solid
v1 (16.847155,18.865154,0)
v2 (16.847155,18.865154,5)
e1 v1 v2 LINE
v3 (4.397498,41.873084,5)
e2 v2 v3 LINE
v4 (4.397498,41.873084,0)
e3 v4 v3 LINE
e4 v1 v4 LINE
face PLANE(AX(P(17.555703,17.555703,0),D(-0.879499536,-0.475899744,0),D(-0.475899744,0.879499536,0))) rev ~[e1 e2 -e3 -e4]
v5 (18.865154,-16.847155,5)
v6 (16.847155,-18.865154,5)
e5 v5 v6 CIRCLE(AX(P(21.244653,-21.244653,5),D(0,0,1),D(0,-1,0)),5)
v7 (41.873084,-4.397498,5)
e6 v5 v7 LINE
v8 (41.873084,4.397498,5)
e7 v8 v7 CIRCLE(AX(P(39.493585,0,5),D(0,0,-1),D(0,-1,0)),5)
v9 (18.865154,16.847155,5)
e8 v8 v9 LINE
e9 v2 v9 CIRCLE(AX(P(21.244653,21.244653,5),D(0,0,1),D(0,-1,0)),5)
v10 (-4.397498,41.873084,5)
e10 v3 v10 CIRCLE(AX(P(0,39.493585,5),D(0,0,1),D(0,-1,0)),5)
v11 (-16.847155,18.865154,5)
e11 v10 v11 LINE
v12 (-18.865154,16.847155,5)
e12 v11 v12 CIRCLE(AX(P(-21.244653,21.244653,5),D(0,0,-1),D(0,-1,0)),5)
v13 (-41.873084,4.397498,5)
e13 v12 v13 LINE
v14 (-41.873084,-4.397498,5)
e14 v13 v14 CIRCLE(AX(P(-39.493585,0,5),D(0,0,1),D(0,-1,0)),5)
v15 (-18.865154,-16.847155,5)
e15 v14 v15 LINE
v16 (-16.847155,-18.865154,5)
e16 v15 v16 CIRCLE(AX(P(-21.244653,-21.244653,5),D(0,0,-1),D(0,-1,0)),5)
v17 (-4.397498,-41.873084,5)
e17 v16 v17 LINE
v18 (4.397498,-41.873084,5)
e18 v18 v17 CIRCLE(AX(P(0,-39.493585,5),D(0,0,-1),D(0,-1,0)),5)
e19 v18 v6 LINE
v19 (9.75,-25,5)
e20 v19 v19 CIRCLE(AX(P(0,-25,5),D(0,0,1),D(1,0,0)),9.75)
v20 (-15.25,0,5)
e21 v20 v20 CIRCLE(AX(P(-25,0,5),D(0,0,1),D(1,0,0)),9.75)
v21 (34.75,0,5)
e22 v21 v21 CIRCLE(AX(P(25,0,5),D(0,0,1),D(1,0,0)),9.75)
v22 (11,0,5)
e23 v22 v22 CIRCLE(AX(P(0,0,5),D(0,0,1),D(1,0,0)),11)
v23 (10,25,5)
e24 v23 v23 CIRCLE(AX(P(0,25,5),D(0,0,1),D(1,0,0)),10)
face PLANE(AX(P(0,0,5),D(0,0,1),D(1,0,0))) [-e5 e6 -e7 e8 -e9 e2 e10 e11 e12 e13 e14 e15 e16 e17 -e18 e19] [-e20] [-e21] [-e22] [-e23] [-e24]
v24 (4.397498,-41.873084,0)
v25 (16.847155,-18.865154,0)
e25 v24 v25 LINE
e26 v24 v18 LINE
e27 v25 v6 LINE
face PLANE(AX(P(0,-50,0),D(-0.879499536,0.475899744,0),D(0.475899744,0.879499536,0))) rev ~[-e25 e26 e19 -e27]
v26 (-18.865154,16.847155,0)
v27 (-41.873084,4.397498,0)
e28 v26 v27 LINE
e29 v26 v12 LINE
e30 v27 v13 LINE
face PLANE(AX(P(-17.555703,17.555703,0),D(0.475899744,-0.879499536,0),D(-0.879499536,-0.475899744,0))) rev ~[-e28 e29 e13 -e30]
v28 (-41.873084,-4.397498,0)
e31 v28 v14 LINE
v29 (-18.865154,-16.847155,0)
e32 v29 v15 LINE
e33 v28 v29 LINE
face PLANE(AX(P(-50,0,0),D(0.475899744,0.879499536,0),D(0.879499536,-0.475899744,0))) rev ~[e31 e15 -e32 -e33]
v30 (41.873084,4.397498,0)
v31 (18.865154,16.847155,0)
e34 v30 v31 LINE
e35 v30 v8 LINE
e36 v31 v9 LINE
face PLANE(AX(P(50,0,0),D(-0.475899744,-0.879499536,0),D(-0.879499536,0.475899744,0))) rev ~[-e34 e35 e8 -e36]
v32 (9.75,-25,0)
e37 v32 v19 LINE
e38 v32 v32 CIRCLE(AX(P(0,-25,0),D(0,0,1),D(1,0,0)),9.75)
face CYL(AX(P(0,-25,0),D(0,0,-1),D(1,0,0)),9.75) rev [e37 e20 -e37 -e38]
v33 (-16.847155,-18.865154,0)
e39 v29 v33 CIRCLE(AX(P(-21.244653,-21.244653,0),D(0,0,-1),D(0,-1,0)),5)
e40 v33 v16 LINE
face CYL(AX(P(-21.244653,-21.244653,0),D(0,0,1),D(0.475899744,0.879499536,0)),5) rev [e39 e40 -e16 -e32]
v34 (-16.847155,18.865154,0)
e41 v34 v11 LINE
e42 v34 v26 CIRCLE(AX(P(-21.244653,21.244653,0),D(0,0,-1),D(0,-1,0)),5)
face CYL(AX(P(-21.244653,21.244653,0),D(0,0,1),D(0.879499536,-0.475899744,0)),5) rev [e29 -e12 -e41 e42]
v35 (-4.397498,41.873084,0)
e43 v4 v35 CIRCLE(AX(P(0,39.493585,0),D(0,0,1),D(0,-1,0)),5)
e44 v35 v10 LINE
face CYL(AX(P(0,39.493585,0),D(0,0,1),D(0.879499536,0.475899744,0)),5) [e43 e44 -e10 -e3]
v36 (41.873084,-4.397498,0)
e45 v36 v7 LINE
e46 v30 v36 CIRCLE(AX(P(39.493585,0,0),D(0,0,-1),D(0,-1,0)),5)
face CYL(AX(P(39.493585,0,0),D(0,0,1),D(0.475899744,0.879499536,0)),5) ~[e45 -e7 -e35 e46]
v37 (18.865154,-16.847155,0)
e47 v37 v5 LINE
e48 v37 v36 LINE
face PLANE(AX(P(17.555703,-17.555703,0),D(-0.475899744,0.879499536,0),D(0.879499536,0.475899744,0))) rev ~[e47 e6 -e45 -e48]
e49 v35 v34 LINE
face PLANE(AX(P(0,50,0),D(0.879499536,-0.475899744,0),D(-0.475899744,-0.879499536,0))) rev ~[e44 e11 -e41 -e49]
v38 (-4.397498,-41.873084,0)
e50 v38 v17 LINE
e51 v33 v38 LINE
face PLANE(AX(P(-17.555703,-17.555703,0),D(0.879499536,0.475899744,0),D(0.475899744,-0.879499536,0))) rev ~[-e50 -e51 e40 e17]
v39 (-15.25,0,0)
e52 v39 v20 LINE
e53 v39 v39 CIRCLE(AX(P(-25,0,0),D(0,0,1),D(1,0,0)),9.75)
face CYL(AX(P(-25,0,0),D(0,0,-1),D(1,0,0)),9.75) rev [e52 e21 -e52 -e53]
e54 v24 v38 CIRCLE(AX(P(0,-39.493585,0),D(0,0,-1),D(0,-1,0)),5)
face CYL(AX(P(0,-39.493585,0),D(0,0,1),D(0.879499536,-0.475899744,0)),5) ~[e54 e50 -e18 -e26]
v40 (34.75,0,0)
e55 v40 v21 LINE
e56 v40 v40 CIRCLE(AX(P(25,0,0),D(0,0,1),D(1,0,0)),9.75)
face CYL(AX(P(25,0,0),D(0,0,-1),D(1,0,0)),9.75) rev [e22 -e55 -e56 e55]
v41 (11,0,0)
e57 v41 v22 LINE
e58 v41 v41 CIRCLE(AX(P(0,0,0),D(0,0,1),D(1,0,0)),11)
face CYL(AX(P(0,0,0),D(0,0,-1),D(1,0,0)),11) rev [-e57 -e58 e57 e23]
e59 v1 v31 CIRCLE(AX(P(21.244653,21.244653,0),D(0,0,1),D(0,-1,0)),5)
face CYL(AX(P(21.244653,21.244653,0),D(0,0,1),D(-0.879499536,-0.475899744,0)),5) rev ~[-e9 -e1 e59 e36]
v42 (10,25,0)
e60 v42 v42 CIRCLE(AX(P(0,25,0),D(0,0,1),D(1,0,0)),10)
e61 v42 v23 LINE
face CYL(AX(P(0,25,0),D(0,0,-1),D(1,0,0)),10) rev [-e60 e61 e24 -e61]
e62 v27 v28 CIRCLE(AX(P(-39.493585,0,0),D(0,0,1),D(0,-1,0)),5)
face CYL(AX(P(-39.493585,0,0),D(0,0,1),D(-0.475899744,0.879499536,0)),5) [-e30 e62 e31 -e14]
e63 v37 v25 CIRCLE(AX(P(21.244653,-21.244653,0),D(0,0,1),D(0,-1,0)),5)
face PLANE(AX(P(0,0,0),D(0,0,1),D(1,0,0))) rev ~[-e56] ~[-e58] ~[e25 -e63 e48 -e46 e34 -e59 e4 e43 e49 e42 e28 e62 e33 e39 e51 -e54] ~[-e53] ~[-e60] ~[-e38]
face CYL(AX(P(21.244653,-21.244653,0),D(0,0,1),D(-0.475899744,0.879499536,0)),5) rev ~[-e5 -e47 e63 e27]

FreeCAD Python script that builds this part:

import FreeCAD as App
import Part
import Sketcher
from FreeCAD import Vector


def edges_at(feature, points):
    """Names of the edges that pass closest to the given points."""
    edges = feature.Shape.Edges
    near = lambda p: min(range(len(edges)), key=lambda i: edges[i].distToShape(Part.Vertex(*p))[0])
    return sorted({f"Edge{near(p) + 1}" for p in points})


def add_polygon(sketch, points):
    """Adds a closed chain of lines whose ends are joined by coincident constraints."""
    first, n = sketch.GeometryCount, len(points)
    for a, b in zip(points, points[1:] + points[:1]):
        sketch.addGeometry(Part.LineSegment(App.Vector(*a, 0), App.Vector(*b, 0)), False)
    for i in range(n):
        sketch.addConstraint(Sketcher.Constraint("Coincident", first + i, 2, first + (i + 1) % n, 1))

doc = App.newDocument("Part")
body = doc.addObject("PartDesign::Body", "Body")

sketch1 = body.newObject("Sketcher::SketchObject", "Sketch")
sketch1.AttachmentSupport = (doc.getObject("XY_Plane"), [""])
sketch1.MapMode = "FlatFace"
add_polygon(sketch1, [(18, 18), (0, 50), (-18, 18), (-50, 0), (-18, -18), (0, -50), (18, -18), (50, 0)])
sketch1.addGeometry(Part.Circle(Vector(-25, 0, 0), Vector(0, 0, 1), 10), False)
sketch1.addGeometry(Part.Circle(Vector(0, -25, 0), Vector(0, 0, 1), 10), False)
sketch1.addGeometry(Part.Circle(Vector(0, 0, 0), Vector(0, 0, 1), 11), False)
sketch1.addGeometry(Part.Circle(Vector(25, 0, 0), Vector(0, 0, 1), 10), False)
sketch1.addGeometry(Part.Circle(Vector(0, 25, 0), Vector(0, 0, 1), 10), False)
sketch1.addConstraint([
    Sketcher.Constraint("Coincident", 10, 3, -1, 1),
    Sketcher.Constraint("Equal", 8, 9),
    Sketcher.Constraint("Equal", 9, 11),
    Sketcher.Constraint("Symmetric", 8, 3, 11, 3, -1, 1),
    Sketcher.Constraint("Symmetric", 9, 3, 12, 3, -1, 1),
    Sketcher.Constraint("Symmetric", 0, 2, 4, 2, -1, 1),
    Sketcher.Constraint("Symmetric", 1, 2, 5, 2, -1, 1),
    Sketcher.Constraint("Symmetric", 2, 2, 6, 2, -1, 1),
    Sketcher.Constraint("Symmetric", 3, 2, 7, 2, -1, 1),
    Sketcher.Constraint("Symmetric", 3, 2, 5, 2, -2),
    Sketcher.Constraint("PointOnObject", 8, 3, -1),
    Sketcher.Constraint("PointOnObject", 9, 3, -2),
    Sketcher.Constraint("PointOnObject", 0, 2, -2),
    Sketcher.Constraint("PointOnObject", 2, 2, -1),
    Sketcher.Constraint("Perpendicular", 0, 2),
    Sketcher.Constraint("Equal", 1, 2),
    Sketcher.Constraint("Diameter", 10, 22.0),
    Sketcher.Constraint("Diameter", 12, 20.0),
    Sketcher.Constraint("Diameter", 8, 19.5),
    Sketcher.Constraint("DistanceX", 8, 3, -1, 1, 25.0),
    Sketcher.Constraint("DistanceY", 9, 3, -1, 1, 25.0),
    Sketcher.Constraint("DistanceY", -1, 1, 0, 2, 50.0),
    Sketcher.Constraint("Distance", 0, 36.889499),
])
pad1 = body.newObject("PartDesign::Pad", "Pad")
pad1.Profile = sketch1
pad1.Length = 5
doc.recompute()

fillet = body.newObject("PartDesign::Fillet", "Fillet")
fillet.Base = (pad1, edges_at(pad1, [
    (0, -50, 2.5),
    (50, 0, 2.5),
    (0, 50, 2.5),
    (-50, 0, 2.5),
    (17.556, 17.556, 2.5),
    (-17.556, 17.556, 2.5),
    (-17.556, -17.556, 2.5),
    (17.556, -17.556, 2.5),
]))
fillet.Radius = 5

doc.recompute()
